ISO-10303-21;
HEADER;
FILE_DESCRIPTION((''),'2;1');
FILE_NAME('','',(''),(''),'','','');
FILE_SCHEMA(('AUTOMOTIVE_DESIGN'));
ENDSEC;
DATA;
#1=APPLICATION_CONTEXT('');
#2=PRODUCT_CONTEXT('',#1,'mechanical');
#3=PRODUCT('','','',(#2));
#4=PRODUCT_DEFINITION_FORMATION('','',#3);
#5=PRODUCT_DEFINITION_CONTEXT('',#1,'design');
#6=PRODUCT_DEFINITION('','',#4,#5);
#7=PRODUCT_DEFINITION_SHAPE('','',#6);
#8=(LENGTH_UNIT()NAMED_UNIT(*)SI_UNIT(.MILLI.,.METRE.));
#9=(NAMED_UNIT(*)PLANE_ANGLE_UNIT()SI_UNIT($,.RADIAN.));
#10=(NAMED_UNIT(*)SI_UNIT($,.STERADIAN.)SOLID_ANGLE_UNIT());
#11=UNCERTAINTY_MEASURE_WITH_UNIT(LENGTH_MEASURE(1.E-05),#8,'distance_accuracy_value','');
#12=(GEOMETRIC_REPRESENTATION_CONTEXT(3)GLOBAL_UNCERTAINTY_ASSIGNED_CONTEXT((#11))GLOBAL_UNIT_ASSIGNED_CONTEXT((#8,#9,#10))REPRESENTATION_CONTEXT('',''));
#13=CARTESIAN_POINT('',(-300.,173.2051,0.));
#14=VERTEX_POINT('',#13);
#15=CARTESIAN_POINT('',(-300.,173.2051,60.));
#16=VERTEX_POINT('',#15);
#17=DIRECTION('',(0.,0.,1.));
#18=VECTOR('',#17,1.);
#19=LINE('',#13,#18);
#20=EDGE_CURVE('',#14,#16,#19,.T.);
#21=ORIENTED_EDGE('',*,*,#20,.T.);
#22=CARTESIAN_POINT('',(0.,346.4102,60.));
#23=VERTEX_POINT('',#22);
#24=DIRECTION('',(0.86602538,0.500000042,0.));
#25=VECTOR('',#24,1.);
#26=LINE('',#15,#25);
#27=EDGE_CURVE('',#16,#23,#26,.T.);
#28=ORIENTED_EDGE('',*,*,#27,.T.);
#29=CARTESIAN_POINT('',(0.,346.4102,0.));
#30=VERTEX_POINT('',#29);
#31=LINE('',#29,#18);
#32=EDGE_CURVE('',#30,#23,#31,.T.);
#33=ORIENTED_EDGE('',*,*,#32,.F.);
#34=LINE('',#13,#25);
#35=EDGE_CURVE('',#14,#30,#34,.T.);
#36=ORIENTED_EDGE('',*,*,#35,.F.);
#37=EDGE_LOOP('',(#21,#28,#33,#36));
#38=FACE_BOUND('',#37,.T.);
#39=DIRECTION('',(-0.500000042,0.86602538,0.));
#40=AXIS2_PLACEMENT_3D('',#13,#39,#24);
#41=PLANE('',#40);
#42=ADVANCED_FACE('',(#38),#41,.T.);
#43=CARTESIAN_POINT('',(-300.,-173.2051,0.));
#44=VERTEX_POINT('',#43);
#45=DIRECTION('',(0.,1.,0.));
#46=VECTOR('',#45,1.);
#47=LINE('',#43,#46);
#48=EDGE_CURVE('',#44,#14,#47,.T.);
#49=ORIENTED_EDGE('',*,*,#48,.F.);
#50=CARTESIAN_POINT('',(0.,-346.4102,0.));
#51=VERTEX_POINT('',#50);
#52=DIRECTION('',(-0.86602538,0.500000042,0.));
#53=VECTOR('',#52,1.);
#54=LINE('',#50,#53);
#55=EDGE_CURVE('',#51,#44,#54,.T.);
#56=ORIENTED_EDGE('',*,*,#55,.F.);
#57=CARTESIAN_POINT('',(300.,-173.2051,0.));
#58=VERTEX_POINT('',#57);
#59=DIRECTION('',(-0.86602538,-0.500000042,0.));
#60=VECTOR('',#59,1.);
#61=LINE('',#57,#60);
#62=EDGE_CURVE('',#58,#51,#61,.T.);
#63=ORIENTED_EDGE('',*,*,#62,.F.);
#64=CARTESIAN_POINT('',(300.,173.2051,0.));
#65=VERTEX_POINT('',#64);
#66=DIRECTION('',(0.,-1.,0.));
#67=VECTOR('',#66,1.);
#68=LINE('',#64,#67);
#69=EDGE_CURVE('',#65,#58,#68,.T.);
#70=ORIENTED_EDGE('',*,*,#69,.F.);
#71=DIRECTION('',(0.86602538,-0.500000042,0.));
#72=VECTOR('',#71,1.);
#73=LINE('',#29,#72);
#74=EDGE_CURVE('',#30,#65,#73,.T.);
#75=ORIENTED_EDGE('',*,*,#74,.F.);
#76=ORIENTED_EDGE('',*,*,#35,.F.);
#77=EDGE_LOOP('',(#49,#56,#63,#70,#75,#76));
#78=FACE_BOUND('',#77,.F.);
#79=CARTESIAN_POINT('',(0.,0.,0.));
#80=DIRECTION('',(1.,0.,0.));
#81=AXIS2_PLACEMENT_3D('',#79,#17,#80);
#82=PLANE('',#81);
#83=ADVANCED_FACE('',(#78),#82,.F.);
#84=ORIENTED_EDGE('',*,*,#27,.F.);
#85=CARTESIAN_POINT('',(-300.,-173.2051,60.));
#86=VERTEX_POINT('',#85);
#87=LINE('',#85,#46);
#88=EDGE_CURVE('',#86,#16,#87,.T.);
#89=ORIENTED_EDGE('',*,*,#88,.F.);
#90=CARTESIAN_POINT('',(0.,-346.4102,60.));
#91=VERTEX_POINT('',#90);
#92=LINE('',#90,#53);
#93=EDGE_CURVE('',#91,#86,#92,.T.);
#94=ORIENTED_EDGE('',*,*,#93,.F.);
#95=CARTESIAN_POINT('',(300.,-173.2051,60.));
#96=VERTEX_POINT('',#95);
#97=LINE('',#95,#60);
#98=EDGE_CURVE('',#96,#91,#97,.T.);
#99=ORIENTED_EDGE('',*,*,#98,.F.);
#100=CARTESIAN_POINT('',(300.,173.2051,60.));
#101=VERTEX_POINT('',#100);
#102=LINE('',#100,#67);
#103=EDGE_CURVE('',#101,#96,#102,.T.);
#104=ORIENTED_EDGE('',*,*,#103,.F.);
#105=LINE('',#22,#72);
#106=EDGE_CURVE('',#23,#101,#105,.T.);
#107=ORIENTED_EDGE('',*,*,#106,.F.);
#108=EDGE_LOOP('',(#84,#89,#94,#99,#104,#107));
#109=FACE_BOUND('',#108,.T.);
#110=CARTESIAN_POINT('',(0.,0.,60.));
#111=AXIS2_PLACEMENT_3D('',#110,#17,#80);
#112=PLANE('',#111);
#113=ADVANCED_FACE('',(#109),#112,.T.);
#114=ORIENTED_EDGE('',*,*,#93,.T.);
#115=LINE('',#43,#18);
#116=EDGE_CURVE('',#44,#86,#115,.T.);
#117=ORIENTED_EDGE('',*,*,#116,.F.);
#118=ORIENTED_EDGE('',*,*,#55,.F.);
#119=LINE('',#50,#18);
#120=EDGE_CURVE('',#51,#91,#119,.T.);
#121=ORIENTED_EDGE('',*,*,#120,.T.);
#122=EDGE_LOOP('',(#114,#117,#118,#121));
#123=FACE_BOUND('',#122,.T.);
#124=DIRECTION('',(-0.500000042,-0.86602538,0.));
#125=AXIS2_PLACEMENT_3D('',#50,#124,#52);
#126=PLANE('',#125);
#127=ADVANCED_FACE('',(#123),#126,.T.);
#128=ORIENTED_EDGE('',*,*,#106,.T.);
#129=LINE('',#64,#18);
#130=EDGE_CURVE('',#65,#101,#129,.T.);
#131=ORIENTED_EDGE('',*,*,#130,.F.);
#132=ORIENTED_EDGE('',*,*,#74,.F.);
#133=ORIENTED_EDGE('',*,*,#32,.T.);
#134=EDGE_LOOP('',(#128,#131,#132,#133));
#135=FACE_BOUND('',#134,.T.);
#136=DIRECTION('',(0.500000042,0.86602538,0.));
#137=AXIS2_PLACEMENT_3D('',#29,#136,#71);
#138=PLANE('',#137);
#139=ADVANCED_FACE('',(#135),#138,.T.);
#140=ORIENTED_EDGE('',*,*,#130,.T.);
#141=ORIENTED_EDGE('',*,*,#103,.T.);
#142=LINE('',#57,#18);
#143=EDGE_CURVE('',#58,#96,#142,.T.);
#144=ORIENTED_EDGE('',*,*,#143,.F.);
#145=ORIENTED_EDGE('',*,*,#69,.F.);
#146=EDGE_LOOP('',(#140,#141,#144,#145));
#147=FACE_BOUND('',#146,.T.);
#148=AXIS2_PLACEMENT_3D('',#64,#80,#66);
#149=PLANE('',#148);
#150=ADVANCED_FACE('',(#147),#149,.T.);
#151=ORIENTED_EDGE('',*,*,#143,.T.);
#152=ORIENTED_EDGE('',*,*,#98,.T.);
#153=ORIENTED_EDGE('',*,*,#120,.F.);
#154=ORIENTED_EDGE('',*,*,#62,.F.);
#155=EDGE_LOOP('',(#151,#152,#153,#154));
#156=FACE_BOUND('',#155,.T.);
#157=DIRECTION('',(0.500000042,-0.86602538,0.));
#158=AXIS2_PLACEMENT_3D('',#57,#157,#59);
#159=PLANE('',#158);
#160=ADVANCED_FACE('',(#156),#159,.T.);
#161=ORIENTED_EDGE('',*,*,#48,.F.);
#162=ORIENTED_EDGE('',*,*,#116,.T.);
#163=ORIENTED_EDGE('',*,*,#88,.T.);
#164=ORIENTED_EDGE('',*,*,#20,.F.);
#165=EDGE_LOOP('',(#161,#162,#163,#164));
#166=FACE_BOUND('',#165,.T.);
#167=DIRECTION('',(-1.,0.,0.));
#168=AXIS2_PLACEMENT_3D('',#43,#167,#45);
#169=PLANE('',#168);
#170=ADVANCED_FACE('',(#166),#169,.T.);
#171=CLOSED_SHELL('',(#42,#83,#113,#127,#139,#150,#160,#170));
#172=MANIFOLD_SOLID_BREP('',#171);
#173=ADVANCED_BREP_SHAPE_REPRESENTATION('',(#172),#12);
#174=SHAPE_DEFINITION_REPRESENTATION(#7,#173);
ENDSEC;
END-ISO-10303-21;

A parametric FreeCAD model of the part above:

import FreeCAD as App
import Part
import Sketcher
from FreeCAD import Vector
Q = App.Units.Quantity

doc = App.newDocument("Part")
body = doc.addObject("PartDesign::Body", "Body")

# Sketch on XY plane
sketch1 = body.newObject("Sketcher::SketchObject", "Sketch")
sketch1.AttachmentSupport = (doc.getObject("XY_Plane"), [""])
sketch1.MapMode = "FlatFace"
sketch1.addGeometry([
    Part.LineSegment(Vector(0, -346, 0), Vector(300, -173, 0)),  # 0
    Part.LineSegment(Vector(300, -173, 0), Vector(300, 173, 0)),  # 1
    Part.LineSegment(Vector(300, 173, 0), Vector(0, 346, 0)),  # 2
    Part.LineSegment(Vector(0, 346, 0), Vector(-300, 173, 0)),  # 3
    Part.LineSegment(Vector(-300, 173, 0), Vector(-300, -173, 0)),  # 4
    Part.LineSegment(Vector(-300, -173, 0), Vector(0, -346, 0)),  # 5
], False)
sketch1.addConstraint([
    Sketcher.Constraint("Coincident", 0, 2, 1, 1),
    Sketcher.Constraint("Coincident", 1, 2, 2, 1),
    Sketcher.Constraint("Coincident", 2, 2, 3, 1),
    Sketcher.Constraint("Coincident", 3, 2, 4, 1),
    Sketcher.Constraint("Coincident", 4, 2, 5, 1),
    Sketcher.Constraint("Coincident", 5, 2, 0, 1),
    Sketcher.Constraint("Vertical", 1),
    Sketcher.Constraint("Vertical", 4),
    Sketcher.Constraint("Symmetric", 0, 2, 3, 2, -1, 1),
    Sketcher.Constraint("Symmetric", 2, 2, 5, 2, -1, 1),
    Sketcher.Constraint("PointOnObject", 2, 2, -2),
    Sketcher.Constraint("Parallel", 2, 5),
    Sketcher.Constraint("Horizontal", 1, 2, 3, 2),
    Sketcher.Constraint("DistanceX", -1, 1, 0, 2, 300.0),
    Sketcher.Constraint("Angle", 0, Q("30 deg")),
    Sketcher.Constraint("DistanceY", 1, 1, 1, 2, 346.4102),
])
pad1 = body.newObject("PartDesign::Pad", "Pad")
pad1.Profile = sketch1
pad1.Length = 60

doc.recompute()
